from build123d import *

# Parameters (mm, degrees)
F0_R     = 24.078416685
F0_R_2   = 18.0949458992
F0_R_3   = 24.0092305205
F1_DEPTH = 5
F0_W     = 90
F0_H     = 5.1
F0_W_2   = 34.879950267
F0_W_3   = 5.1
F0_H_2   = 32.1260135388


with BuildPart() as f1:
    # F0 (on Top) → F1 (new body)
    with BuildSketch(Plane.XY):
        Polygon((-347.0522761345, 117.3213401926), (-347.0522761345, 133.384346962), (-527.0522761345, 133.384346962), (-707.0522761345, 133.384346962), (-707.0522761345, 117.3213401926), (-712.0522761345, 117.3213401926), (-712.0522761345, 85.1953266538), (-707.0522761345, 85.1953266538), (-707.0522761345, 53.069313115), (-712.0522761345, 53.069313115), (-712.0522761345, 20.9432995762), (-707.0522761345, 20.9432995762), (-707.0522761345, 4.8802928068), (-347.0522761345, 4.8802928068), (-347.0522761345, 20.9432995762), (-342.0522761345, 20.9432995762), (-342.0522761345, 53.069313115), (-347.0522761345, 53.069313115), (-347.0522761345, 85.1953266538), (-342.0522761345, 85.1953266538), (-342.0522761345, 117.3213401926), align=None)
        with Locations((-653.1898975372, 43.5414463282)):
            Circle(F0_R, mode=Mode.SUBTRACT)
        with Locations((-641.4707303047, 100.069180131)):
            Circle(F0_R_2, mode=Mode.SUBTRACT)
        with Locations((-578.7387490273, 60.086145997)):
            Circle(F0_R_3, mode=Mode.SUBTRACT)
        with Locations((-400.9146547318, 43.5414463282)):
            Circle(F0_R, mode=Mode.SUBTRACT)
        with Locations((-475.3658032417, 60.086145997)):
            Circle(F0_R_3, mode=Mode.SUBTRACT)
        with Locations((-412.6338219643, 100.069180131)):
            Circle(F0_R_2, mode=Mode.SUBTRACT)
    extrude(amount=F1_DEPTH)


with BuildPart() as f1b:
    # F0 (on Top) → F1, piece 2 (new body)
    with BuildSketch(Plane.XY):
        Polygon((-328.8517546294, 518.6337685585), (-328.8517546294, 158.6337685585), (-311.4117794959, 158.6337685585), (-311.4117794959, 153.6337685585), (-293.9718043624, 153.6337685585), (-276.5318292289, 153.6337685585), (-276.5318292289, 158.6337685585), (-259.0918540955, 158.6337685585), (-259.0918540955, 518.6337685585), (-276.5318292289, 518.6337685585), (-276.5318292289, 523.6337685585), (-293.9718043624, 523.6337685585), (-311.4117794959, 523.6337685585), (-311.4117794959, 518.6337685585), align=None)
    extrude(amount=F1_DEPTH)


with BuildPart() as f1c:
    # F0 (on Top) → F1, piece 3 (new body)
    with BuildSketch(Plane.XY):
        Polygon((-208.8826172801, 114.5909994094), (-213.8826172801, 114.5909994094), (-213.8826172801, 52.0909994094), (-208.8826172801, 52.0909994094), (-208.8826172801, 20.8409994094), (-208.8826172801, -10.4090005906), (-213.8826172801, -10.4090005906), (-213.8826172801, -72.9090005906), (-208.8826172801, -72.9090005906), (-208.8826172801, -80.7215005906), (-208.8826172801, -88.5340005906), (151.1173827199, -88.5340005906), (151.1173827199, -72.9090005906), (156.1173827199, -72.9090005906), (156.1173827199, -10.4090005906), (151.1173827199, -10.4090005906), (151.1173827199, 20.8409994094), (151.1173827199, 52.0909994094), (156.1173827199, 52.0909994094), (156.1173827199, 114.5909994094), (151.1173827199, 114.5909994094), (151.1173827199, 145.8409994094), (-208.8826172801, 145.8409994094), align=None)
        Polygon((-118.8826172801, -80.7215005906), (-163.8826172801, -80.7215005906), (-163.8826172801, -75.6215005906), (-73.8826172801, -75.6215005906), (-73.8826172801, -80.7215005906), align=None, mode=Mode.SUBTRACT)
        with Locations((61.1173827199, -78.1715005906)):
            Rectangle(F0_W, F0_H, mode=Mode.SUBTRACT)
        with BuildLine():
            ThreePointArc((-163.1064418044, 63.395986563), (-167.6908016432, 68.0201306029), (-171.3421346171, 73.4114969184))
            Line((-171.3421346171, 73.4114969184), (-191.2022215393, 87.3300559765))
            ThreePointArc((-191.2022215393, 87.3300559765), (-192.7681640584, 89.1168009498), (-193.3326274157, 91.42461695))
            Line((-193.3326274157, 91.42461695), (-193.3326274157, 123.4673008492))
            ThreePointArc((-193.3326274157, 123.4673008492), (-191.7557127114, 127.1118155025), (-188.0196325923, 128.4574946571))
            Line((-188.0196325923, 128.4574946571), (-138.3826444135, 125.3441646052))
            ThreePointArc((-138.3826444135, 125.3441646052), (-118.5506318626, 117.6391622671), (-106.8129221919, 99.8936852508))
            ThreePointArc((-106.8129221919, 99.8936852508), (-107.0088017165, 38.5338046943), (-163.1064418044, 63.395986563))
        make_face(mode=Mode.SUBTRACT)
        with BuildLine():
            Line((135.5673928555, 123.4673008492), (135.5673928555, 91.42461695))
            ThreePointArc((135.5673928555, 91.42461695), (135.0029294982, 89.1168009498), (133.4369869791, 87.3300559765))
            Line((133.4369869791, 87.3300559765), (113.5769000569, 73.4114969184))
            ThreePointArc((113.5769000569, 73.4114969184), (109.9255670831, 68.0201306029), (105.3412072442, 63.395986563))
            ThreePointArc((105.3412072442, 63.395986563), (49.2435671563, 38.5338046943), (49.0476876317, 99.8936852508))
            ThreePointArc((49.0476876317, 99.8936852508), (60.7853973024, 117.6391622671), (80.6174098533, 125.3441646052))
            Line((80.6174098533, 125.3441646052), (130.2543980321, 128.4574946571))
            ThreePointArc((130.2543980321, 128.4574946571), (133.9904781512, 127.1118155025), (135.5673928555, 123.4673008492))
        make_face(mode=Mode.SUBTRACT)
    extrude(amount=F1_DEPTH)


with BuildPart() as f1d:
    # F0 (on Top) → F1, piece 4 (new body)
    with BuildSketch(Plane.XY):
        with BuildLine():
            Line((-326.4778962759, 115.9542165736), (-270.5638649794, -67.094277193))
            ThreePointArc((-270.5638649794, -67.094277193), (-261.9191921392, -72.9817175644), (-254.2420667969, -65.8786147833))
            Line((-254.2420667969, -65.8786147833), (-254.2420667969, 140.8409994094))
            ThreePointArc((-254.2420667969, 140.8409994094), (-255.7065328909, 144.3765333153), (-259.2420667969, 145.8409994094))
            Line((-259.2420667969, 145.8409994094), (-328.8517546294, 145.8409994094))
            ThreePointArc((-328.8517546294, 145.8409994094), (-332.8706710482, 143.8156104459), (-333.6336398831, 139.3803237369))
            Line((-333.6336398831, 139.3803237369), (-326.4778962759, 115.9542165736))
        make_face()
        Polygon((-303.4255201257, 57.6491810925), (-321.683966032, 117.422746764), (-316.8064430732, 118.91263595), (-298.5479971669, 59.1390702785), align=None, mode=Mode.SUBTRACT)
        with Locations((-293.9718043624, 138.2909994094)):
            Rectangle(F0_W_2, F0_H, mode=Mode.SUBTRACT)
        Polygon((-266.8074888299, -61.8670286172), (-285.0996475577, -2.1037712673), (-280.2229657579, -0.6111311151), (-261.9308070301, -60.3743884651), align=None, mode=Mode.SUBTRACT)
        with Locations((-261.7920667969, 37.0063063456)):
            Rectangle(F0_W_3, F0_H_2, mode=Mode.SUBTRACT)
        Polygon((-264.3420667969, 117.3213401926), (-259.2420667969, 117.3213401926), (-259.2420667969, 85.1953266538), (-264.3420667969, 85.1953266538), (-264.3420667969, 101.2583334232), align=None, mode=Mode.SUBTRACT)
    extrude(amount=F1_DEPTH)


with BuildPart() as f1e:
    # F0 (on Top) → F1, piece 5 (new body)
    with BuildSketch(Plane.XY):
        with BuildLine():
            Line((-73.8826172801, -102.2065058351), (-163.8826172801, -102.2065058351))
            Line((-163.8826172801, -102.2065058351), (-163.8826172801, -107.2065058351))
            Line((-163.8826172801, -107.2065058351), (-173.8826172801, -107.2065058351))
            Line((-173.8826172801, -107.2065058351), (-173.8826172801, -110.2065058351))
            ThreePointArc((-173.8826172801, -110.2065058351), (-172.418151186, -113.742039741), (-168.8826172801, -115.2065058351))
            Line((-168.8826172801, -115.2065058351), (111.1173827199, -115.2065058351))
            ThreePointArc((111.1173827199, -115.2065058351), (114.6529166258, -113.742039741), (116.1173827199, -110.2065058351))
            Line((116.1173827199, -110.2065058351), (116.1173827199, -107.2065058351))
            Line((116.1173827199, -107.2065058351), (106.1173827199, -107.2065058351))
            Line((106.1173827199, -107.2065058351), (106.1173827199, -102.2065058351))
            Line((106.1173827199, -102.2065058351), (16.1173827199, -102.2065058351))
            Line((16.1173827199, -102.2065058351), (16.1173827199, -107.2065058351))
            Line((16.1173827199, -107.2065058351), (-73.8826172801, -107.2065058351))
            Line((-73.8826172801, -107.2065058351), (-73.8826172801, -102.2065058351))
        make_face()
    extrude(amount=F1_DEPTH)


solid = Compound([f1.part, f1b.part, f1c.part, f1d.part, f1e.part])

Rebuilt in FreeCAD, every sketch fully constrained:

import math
import FreeCAD as App
import Part
import Sketcher

V = App.Vector
Q = App.Units.Quantity


def add_polygon(sketch, points):
    """Adds a closed chain of lines whose ends are joined by coincident constraints."""
    first, n = sketch.GeometryCount, len(points)
    for a, b in zip(points, points[1:] + points[:1]):
        sketch.addGeometry(Part.LineSegment(App.Vector(*a, 0), App.Vector(*b, 0)), False)
    for i in range(n):
        sketch.addConstraint(Sketcher.Constraint("Coincident", first + i, 2, first + (i + 1) % n, 1))

doc = App.newDocument("Part")
body = doc.addObject("PartDesign::Body", "Body")

# Sketch on XY plane
sketch1 = body.newObject("Sketcher::SketchObject", "Sketch")
sketch1.AttachmentSupport = (doc.getObject("XY_Plane"), [""])
sketch1.MapMode = "FlatFace"
add_polygon(sketch1, [(-347, 117), (-347, 133), (-707, 133), (-707, 117), (-712, 117), (-712, 85), (-707, 85), (-707, 53), (-712, 53), (-712, 21), (-707, 21), (-707, 5), (-347, 5), (-347, 21), (-342, 21), (-342, 53), (-347, 53), (-347, 85), (-342, 85), (-342, 117)])  # lines 0-19
sketch1.addGeometry(Part.Circle(V(-653, 44, 0), V(0, 0, 1), 24), False)  # 20
sketch1.addGeometry(Part.Circle(V(-579, 60, 0), V(0, 0, 1), 24), False)  # 21
sketch1.addGeometry(Part.Circle(V(-401, 44, 0), V(0, 0, 1), 24), False)  # 22
sketch1.addGeometry(Part.Circle(V(-475, 60, 0), V(0, 0, 1), 24), False)  # 23
sketch1.addGeometry(Part.Circle(V(-641, 100, 0), V(0, 0, 1), 18), False)  # 24
sketch1.addGeometry(Part.Circle(V(-413, 100, 0), V(0, 0, 1), 18), False)  # 25
sketch1.addConstraint(Sketcher.Constraint("Vertical", 0))
sketch1.addConstraint(Sketcher.Constraint("Horizontal", 1))
sketch1.addConstraint(Sketcher.Constraint("Vertical", 2))
sketch1.addConstraint(Sketcher.Constraint("Horizontal", 3))
sketch1.addConstraint(Sketcher.Constraint("Vertical", 4))
sketch1.addConstraint(Sketcher.Constraint("Horizontal", 5))
sketch1.addConstraint(Sketcher.Constraint("Vertical", 6))
sketch1.addConstraint(Sketcher.Constraint("Horizontal", 7))
sketch1.addConstraint(Sketcher.Constraint("Vertical", 8))
sketch1.addConstraint(Sketcher.Constraint("Horizontal", 9))
sketch1.addConstraint(Sketcher.Constraint("Vertical", 10))
sketch1.addConstraint(Sketcher.Constraint("Horizontal", 11))
sketch1.addConstraint(Sketcher.Constraint("Vertical", 12))
sketch1.addConstraint(Sketcher.Constraint("Horizontal", 13))
sketch1.addConstraint(Sketcher.Constraint("Vertical", 14))
sketch1.addConstraint(Sketcher.Constraint("Horizontal", 15))
sketch1.addConstraint(Sketcher.Constraint("Vertical", 16))
sketch1.addConstraint(Sketcher.Constraint("Horizontal", 17))
sketch1.addConstraint(Sketcher.Constraint("Vertical", 18))
sketch1.addConstraint(Sketcher.Constraint("Horizontal", 19))
sketch1.addConstraint(Sketcher.Constraint("Equal", 20, 22))
sketch1.addConstraint(Sketcher.Constraint("Equal", 21, 23))
sketch1.addConstraint(Sketcher.Constraint("Equal", 24, 25))
sketch1.addConstraint(Sketcher.Constraint("Horizontal", 20, 3, 22, 3))
sketch1.addConstraint(Sketcher.Constraint("Horizontal", 21, 3, 23, 3))
sketch1.addConstraint(Sketcher.Constraint("Horizontal", 24, 3, 25, 3))
sketch1.addConstraint(Sketcher.Constraint("Horizontal", 9, 2, 12, 2))
sketch1.addConstraint(Sketcher.Constraint("Horizontal", 7, 2, 14, 2))
sketch1.addConstraint(Sketcher.Constraint("Horizontal", 5, 2, 16, 2))
sketch1.addConstraint(Sketcher.Constraint("Horizontal", 3, 2, 18, 2))
sketch1.addConstraint(Sketcher.Constraint("Vertical", 2, 2, 5, 2))
sketch1.addConstraint(Sketcher.Constraint("Vertical", 4, 2, 7, 2))
sketch1.addConstraint(Sketcher.Constraint("Vertical", 6, 2, 9, 2))
sketch1.addConstraint(Sketcher.Constraint("Vertical", 0, 2, 11, 2))
sketch1.addConstraint(Sketcher.Constraint("Vertical", 12, 2, 15, 2))
sketch1.addConstraint(Sketcher.Constraint("Vertical", 14, 2, 17, 2))
sketch1.addConstraint(Sketcher.Constraint("Equal", 9, 13))
sketch1.addConstraint(Sketcher.Constraint("Equal", 4, 6))
sketch1.addConstraint(Sketcher.Constraint("Equal", 6, 8))
sketch1.addConstraint(Sketcher.Constraint("Equal", 2, 10))
sketch1.addConstraint(Sketcher.Constraint("DistanceX", 1, 2, 1, 1, Q("360 mm")))
sketch1.addConstraint(Sketcher.Constraint("DistanceX", 3, 2, 3, 1, Q("5 mm")))
sketch1.addConstraint(Sketcher.Constraint("Diameter", 21, Q("48.018461 mm")))
sketch1.addConstraint(Sketcher.Constraint("Diameter", 24, Q("36.189892 mm")))
sketch1.addConstraint(Sketcher.Constraint("Diameter", 20, Q("48.156833 mm")))
sketch1.addConstraint(Sketcher.Constraint("DistanceY", -1, 1, 8, 2, Q("20.9433 mm")))
sketch1.addConstraint(Sketcher.Constraint("DistanceY", 20, 3, 21, 3, Q("16.5447 mm")))
sketch1.addConstraint(Sketcher.Constraint("DistanceY", 22, 3, 0, 2, Q("89.842901 mm")))
sketch1.addConstraint(Sketcher.Constraint("DistanceY", 0, 1, 0, 2, Q("16.063007 mm")))
sketch1.addConstraint(Sketcher.Constraint("DistanceY", 4, 2, 4, 1, Q("32.126014 mm")))
sketch1.addConstraint(Sketcher.Constraint("DistanceX", 21, 3, -1, 1, Q("578.738749 mm")))
sketch1.addConstraint(Sketcher.Constraint("DistanceX", 24, 3, -1, 1, Q("641.47073 mm")))
sketch1.addConstraint(Sketcher.Constraint("DistanceY", -1, 1, 24, 3, Q("100.06918 mm")))
sketch1.addConstraint(Sketcher.Constraint("DistanceX", 25, 3, -1, 1, Q("412.633822 mm")))
sketch1.addConstraint(Sketcher.Constraint("DistanceX", 20, 3, 21, 3, Q("74.451149 mm")))
sketch1.addConstraint(Sketcher.Constraint("DistanceX", 23, 3, 22, 3, Q("74.451149 mm")))
sketch1.addConstraint(Sketcher.Constraint("DistanceX", 23, 3, 25, 3, Q("62.731981 mm")))
sketch1.addConstraint(Sketcher.Constraint("DistanceX", 22, 3, 0, 2, Q("53.862379 mm")))
pad1 = body.newObject("PartDesign::Pad", "Pad")
pad1.Profile = sketch1
pad1.Length = 5
body2 = doc.addObject("PartDesign::Body", "Body001")

# Sketch on XY plane
sketch2 = body2.newObject("Sketcher::SketchObject", "Sketch001")
sketch2.AttachmentSupport = (doc.getObject("XY_Plane001"), [""])
sketch2.MapMode = "FlatFace"
add_polygon(sketch2, [(-329, 519), (-329, 159), (-311, 159), (-311, 154), (-277, 154), (-277, 159), (-259, 159), (-259, 519), (-277, 519), (-277, 524), (-311, 524), (-311, 519)])  # lines 0-11
sketch2.addConstraint(Sketcher.Constraint("Vertical", 0))
sketch2.addConstraint(Sketcher.Constraint("Horizontal", 1))
sketch2.addConstraint(Sketcher.Constraint("Vertical", 2))
sketch2.addConstraint(Sketcher.Constraint("Horizontal", 3))
sketch2.addConstraint(Sketcher.Constraint("Vertical", 4))
sketch2.addConstraint(Sketcher.Constraint("Horizontal", 5))
sketch2.addConstraint(Sketcher.Constraint("Vertical", 6))
sketch2.addConstraint(Sketcher.Constraint("Horizontal", 7))
sketch2.addConstraint(Sketcher.Constraint("Vertical", 8))
sketch2.addConstraint(Sketcher.Constraint("Horizontal", 9))
sketch2.addConstraint(Sketcher.Constraint("Vertical", 10))
sketch2.addConstraint(Sketcher.Constraint("Horizontal", 11))
sketch2.addConstraint(Sketcher.Constraint("Horizontal", 1, 2, 4, 2))
sketch2.addConstraint(Sketcher.Constraint("Horizontal", 7, 2, 10, 2))
sketch2.addConstraint(Sketcher.Constraint("Vertical", 4, 2, 7, 2))
sketch2.addConstraint(Sketcher.Constraint("Vertical", 2, 2, 9, 2))
sketch2.addConstraint(Sketcher.Constraint("Equal", 1, 5))
sketch2.addConstraint(Sketcher.Constraint("Equal", 4, 8))
sketch2.addConstraint(Sketcher.Constraint("DistanceY", 0, 2, 0, 1, Q("360 mm")))
sketch2.addConstraint(Sketcher.Constraint("DistanceY", 2, 2, 2, 1, Q("5 mm")))
sketch2.addConstraint(Sketcher.Constraint("DistanceX", 3, 1, 3, 2, Q("34.87995 mm")))
sketch2.addConstraint(Sketcher.Constraint("DistanceX", 0, 2, 5, 2, Q("69.759901 mm")))
sketch2.addConstraint(Sketcher.Constraint("DistanceY", -1, 1, 0, 2, Q("158.633769 mm")))
sketch2.addConstraint(Sketcher.Constraint("DistanceX", 1, 2, -1, 1, Q("311.411779 mm")))
pad2 = body2.newObject("PartDesign::Pad", "Pad001")
pad2.Profile = sketch2
pad2.Length = 5
body3 = doc.addObject("PartDesign::Body", "Body002")

# Sketch on XY plane
sketch3 = body3.newObject("Sketcher::SketchObject", "Sketch002")
sketch3.AttachmentSupport = (doc.getObject("XY_Plane002"), [""])
sketch3.MapMode = "FlatFace"
add_polygon(sketch3, [(-208.9, 114.6), (-213.9, 114.6), (-213.9, 52.1), (-208.9, 52.1), (-208.9, -10.4), (-213.9, -10.4), (-213.9, -72.9), (-208.9, -72.9), (-208.9, -88.5), (151.1, -88.5), (151.1, -72.9), (156.1, -72.9), (156.1, -10.4), (151.1, -10.4), (151.1, 52.1), (156.1, 52.1), (156.1, 114.6), (151.1, 114.6), (151.1, 145.8), (-208.9, 145.8)])  # lines 0-19
add_polygon(sketch3, [(-73.9, -80.7), (-163.9, -80.7), (-163.9, -75.6), (-73.9, -75.6)])  # lines 20-23
add_polygon(sketch3, [(106.1, -80.7), (16.1, -80.7), (16.1, -75.6), (106.1, -75.6)])  # lines 24-27
sketch3.addGeometry(Part.ArcOfCircle(Part.Circle(V(-126.9, 69.3, 0), V(0, 0, 1), 36.6), math.radians(-171), math.radians(57)), False)  # 28
sketch3.addGeometry(Part.ArcOfCircle(Part.Circle(V(-140.6, 90.3, 0), V(0, 0, 1), 35.1), math.radians(-151), math.radians(-130)), False)  # 29
sketch3.addGeometry(Part.LineSegment(V(-171.3, 73.4, 0), V(-191.2, 87.3, 0)), False)  # 30
sketch3.addGeometry(Part.ArcOfCircle(Part.Circle(V(-188.3, 91.4, 0), V(0, 0, 1), 5), math.radians(180), math.radians(235)), False)  # 31
sketch3.addGeometry(Part.LineSegment(V(-193.3, 91.4, 0), V(-193.3, 123.5, 0)), False)  # 32
sketch3.addGeometry(Part.ArcOfCircle(Part.Circle(V(-188.3, 123.5, 0), V(0, 0, 1), 5), math.radians(86), math.radians(180)), False)  # 33
sketch3.addGeometry(Part.LineSegment(V(-188, 128.5, 0), V(-138.4, 125.3, 0)), False)  # 34
sketch3.addGeometry(Part.ArcOfCircle(Part.Circle(V(-140.6, 90.3, 0), V(0, 0, 1), 35.1), math.radians(16), math.radians(86)), False)  # 35
sketch3.addGeometry(Part.ArcOfCircle(Part.Circle(V(130.6, 123.5, 0), V(0, 0, 1), 5), math.radians(0), math.radians(94)), False)  # 36
sketch3.addGeometry(Part.LineSegment(V(135.6, 123.5, 0), V(135.6, 91.4, 0)), False)  # 37
sketch3.addGeometry(Part.ArcOfCircle(Part.Circle(V(130.6, 91.4, 0), V(0, 0, 1), 5), math.radians(-55), math.radians(0)), False)  # 38
sketch3.addGeometry(Part.LineSegment(V(133.4, 87.3, 0), V(113.6, 73.4, 0)), False)  # 39
sketch3.addGeometry(Part.ArcOfCircle(Part.Circle(V(82.8, 90.3, 0), V(0, 0, 1), 35.1), math.radians(-50), math.radians(-29)), False)  # 40
sketch3.addGeometry(Part.ArcOfCircle(Part.Circle(V(69.2, 69.3, 0), V(0, 0, 1), 36.6), math.radians(123), math.radians(351)), False)  # 41
sketch3.addGeometry(Part.ArcOfCircle(Part.Circle(V(82.8, 90.3, 0), V(0, 0, 1), 35.1), math.radians(94), math.radians(164)), False)  # 42
sketch3.addGeometry(Part.LineSegment(V(80.6, 125.3, 0), V(130.3, 128.5, 0)), False)  # 43
sketch3.addConstraint(Sketcher.Constraint("Coincident", 28, 1, 29, 2))
sketch3.addConstraint(Sketcher.Constraint("Coincident", 29, 1, 30, 1))
sketch3.addConstraint(Sketcher.Constraint("Tangent", 30, 2, 31, 2))
sketch3.addConstraint(Sketcher.Constraint("Tangent", 31, 1, 32, 1))
sketch3.addConstraint(Sketcher.Constraint("Tangent", 32, 2, 33, 2))
sketch3.addConstraint(Sketcher.Constraint("Tangent", 33, 1, 34, 1))
sketch3.addConstraint(Sketcher.Constraint("Tangent", 34, 2, 35, 2))
sketch3.addConstraint(Sketcher.Constraint("Coincident", 35, 1, 28, 2))
sketch3.addConstraint(Sketcher.Constraint("Tangent", 36, 1, 37, 1))
sketch3.addConstraint(Sketcher.Constraint("Tangent", 37, 2, 38, 2))
sketch3.addConstraint(Sketcher.Constraint("Tangent", 38, 1, 39, 1))
sketch3.addConstraint(Sketcher.Constraint("Coincident", 39, 2, 40, 2))
sketch3.addConstraint(Sketcher.Constraint("Coincident", 40, 1, 41, 2))
sketch3.addConstraint(Sketcher.Constraint("Coincident", 41, 1, 42, 2))
sketch3.addConstraint(Sketcher.Constraint("Tangent", 42, 1, 43, 1))
sketch3.addConstraint(Sketcher.Constraint("Tangent", 43, 2, 36, 2))
sketch3.addConstraint(Sketcher.Constraint("Horizontal", 0))
sketch3.addConstraint(Sketcher.Constraint("Vertical", 1))
sketch3.addConstraint(Sketcher.Constraint("Horizontal", 2))
sketch3.addConstraint(Sketcher.Constraint("Vertical", 3))
sketch3.addConstraint(Sketcher.Constraint("Horizontal", 4))
sketch3.addConstraint(Sketcher.Constraint("Vertical", 5))
sketch3.addConstraint(Sketcher.Constraint("Horizontal", 6))
sketch3.addConstraint(Sketcher.Constraint("Vertical", 7))
sketch3.addConstraint(Sketcher.Constraint("Horizontal", 8))
sketch3.addConstraint(Sketcher.Constraint("Vertical", 9))
sketch3.addConstraint(Sketcher.Constraint("Horizontal", 10))
sketch3.addConstraint(Sketcher.Constraint("Vertical", 11))
sketch3.addConstraint(Sketcher.Constraint("Horizontal", 12))
sketch3.addConstraint(Sketcher.Constraint("Vertical", 13))
sketch3.addConstraint(Sketcher.Constraint("Horizontal", 14))
sketch3.addConstraint(Sketcher.Constraint("Vertical", 15))
sketch3.addConstraint(Sketcher.Constraint("Horizontal", 16))
sketch3.addConstraint(Sketcher.Constraint("Vertical", 17))
sketch3.addConstraint(Sketcher.Constraint("Horizontal", 18))
sketch3.addConstraint(Sketcher.Constraint("Vertical", 19))
sketch3.addConstraint(Sketcher.Constraint("Horizontal", 20))
sketch3.addConstraint(Sketcher.Constraint("Vertical", 21))
sketch3.addConstraint(Sketcher.Constraint("Horizontal", 22))
sketch3.addConstraint(Sketcher.Constraint("Vertical", 23))
sketch3.addConstraint(Sketcher.Constraint("Horizontal", 24))
sketch3.addConstraint(Sketcher.Constraint("Vertical", 25))
sketch3.addConstraint(Sketcher.Constraint("Horizontal", 26))
sketch3.addConstraint(Sketcher.Constraint("Vertical", 27))
sketch3.addConstraint(Sketcher.Constraint("Vertical", 32))
sketch3.addConstraint(Sketcher.Constraint("Vertical", 37))
sketch3.addConstraint(Sketcher.Constraint("Coincident", 35, 3, 29, 3))
sketch3.addConstraint(Sketcher.Constraint("Coincident", 42, 3, 40, 3))
sketch3.addConstraint(Sketcher.Constraint("Equal", 31, 33))
sketch3.addConstraint(Sketcher.Constraint("Equal", 29, 35))
sketch3.addConstraint(Sketcher.Constraint("Equal", 33, 36))
sketch3.addConstraint(Sketcher.Constraint("Equal", 36, 38))
sketch3.addConstraint(Sketcher.Constraint("Equal", 35, 40))
sketch3.addConstraint(Sketcher.Constraint("Equal", 28, 41))
sketch3.addConstraint(Sketcher.Constraint("Equal", 40, 42))
sketch3.addConstraint(Sketcher.Constraint("Horizontal", 33, 3, 36, 3))
sketch3.addConstraint(Sketcher.Constraint("Horizontal", 31, 3, 38, 3))
sketch3.addConstraint(Sketcher.Constraint("Horizontal", 35, 3, 40, 3))
sketch3.addConstraint(Sketcher.Constraint("Horizontal", 28, 3, 41, 3))
sketch3.addConstraint(Sketcher.Constraint("Horizontal", 6, 2, 9, 2))
sketch3.addConstraint(Sketcher.Constraint("Horizontal", 4, 2, 11, 2))
sketch3.addConstraint(Sketcher.Constraint("Horizontal", 2, 2, 13, 2))
sketch3.addConstraint(Sketcher.Constraint("Horizontal", 0, 2, 15, 2))
sketch3.addConstraint(Sketcher.Constraint("Horizontal", 23, 2, 24, 2))
sketch3.addConstraint(Sketcher.Constraint("Horizontal", 22, 2, 25, 2))
sketch3.addConstraint(Sketcher.Constraint("Horizontal", 30, 2, 38, 1))
sketch3.addConstraint(Sketcher.Constraint("Horizontal", 29, 1, 39, 2))
sketch3.addConstraint(Sketcher.Constraint("Horizontal", 28, 1, 40, 1))
sketch3.addConstraint(Sketcher.Constraint("Vertical", 1, 2, 4, 2))
sketch3.addConstraint(Sketcher.Constraint("Vertical", 3, 2, 6, 2))
sketch3.addConstraint(Sketcher.Constraint("Vertical", 9, 2, 12, 2))
sketch3.addConstraint(Sketcher.Constraint("Vertical", 11, 2, 14, 2))
sketch3.addConstraint(Sketcher.Constraint("Vertical", 13, 2, 16, 2))
sketch3.addConstraint(Sketcher.Constraint("Vertical", 7, 2, 18, 2))
sketch3.addConstraint(Sketcher.Constraint("Equal", 6, 10))
sketch3.addConstraint(Sketcher.Constraint("Equal", 22, 24))
sketch3.addConstraint(Sketcher.Constraint("Equal", 1, 3))
sketch3.addConstraint(Sketcher.Constraint("Equal", 3, 5))
sketch3.addConstraint(Sketcher.Constraint("Radius", 31, Q("5 mm")))
sketch3.addConstraint(Sketcher.Constraint("DistanceX", 0, 2, 0, 1, Q("5 mm")))
sketch3.addConstraint(Sketcher.Constraint("DistanceX", 8, 1, 8, 2, Q("360 mm")))
sketch3.addConstraint(Sketcher.Constraint("DistanceX", 20, 2, 20, 1, Q("90 mm")))
sketch3.addConstraint(Sketcher.Constraint("DistanceY", 1, 2, 1, 1, Q("62.5 mm")))
sketch3.addConstraint(Sketcher.Constraint("DistanceY", 21, 1, 21, 2, Q("5.1 mm")))
sketch3.addConstraint(Sketcher.Constraint("DistanceX", 6, 2, 20, 2, Q("45 mm")))
sketch3.addConstraint(Sketcher.Constraint("DistanceX", 23, 2, 24, 2, Q("90 mm")))
sketch3.addConstraint(Sketcher.Constraint("DistanceY", 17, 1, 17, 2, Q("31.25 mm")))
sketch3.addConstraint(Sketcher.Constraint("DistanceY", 7, 2, 7, 1, Q("15.625 mm")))
sketch3.addConstraint(Sketcher.Constraint("Radius", 28, Q("36.64012 mm")))
sketch3.addConstraint(Sketcher.Constraint("DistanceY", -1, 1, 0, 2, Q("114.590999 mm")))
sketch3.addConstraint(Sketcher.Constraint("Radius", 29, Q("35.099703 mm")))
sketch3.addConstraint(Sketcher.Constraint("DistanceY", 29, 3, 33, 3, Q("33.154 mm")))
sketch3.addConstraint(Sketcher.Constraint("DistanceY", -1, 1, 29, 3, Q("90.3133 mm")))
sketch3.addConstraint(Sketcher.Constraint("DistanceY", 20, 2, -1, 1, Q("80.721501 mm")))
sketch3.addConstraint(Sketcher.Constraint("DistanceX", -1, 1, 39, 2, Q("113.5769 mm")))
sketch3.addConstraint(Sketcher.Constraint("DistanceX", -1, 1, 43, 2, Q("130.254398 mm")))
sketch3.addConstraint(Sketcher.Constraint("DistanceY", 28, 1, 35, 1, Q("36.497699 mm")))
sketch3.addConstraint(Sketcher.Constraint("Distance", 30, Q("24.25179 mm")))
sketch3.addConstraint(Sketcher.Constraint("Distance", 34, Q("49.734529 mm")))
sketch3.addConstraint(Sketcher.Constraint("DistanceY", -1, 1, 28, 3, Q("69.277689 mm")))
sketch3.addConstraint(Sketcher.Constraint("DistanceX", 29, 3, -1, 1, Q("140.579849 mm")))
sketch3.addConstraint(Sketcher.Constraint("DistanceX", 0, 2, 33, 3, Q("25.54999 mm")))
pad3 = body3.newObject("PartDesign::Pad", "Pad002")
pad3.Profile = sketch3
pad3.Length = 5
body4 = doc.addObject("PartDesign::Body", "Body003")

# Sketch on XY plane
sketch4 = body4.newObject("Sketcher::SketchObject", "Sketch003")
sketch4.AttachmentSupport = (doc.getObject("XY_Plane003"), [""])
sketch4.MapMode = "FlatFace"
sketch4.addGeometry(Part.LineSegment(V(-326, 116, 0), V(-271, -67, 0)), False)  # 0
sketch4.addGeometry(Part.ArcOfCircle(Part.Circle(V(-263, -65, 0), V(0, 0, 1), 8), math.radians(-163), math.radians(-9)), False)  # 1
sketch4.addGeometry(Part.LineSegment(V(-254, -66, 0), V(-254, 141, 0)), False)  # 2
sketch4.addGeometry(Part.ArcOfCircle(Part.Circle(V(-259, 141, 0), V(0, 0, 1), 5), math.radians(0), math.radians(90)), False)  # 3
sketch4.addGeometry(Part.LineSegment(V(-259, 146, 0), V(-329, 146, 0)), False)  # 4
sketch4.addGeometry(Part.ArcOfCircle(Part.Circle(V(-329, 141, 0), V(0, 0, 1), 5), math.radians(90), math.radians(197)), False)  # 5
sketch4.addGeometry(Part.LineSegment(V(-334, 139, 0), V(-326, 116, 0)), False)  # 6
add_polygon(sketch4, [(-262, -60), (-267, -62), (-285, -2), (-280, -1)])  # lines 7-10
add_polygon(sketch4, [(-259, 21), (-264, 21), (-264, 53), (-259, 53)])  # lines 11-14
add_polygon(sketch4, [(-299, 59), (-303, 58), (-322, 117), (-317, 119)])  # lines 15-18
add_polygon(sketch4, [(-277, 136), (-311, 136), (-311, 141), (-277, 141)])  # lines 19-22
add_polygon(sketch4, [(-264, 85), (-264, 117), (-259, 117), (-259, 85)])  # lines 23-26
sketch4.addConstraint(Sketcher.Constraint("Coincident", 0, 2, 1, 1))
sketch4.addConstraint(Sketcher.Constraint("Coincident", 1, 2, 2, 1))
sketch4.addConstraint(Sketcher.Constraint("Tangent", 2, 2, 3, 1))
sketch4.addConstraint(Sketcher.Constraint("Tangent", 3, 2, 4, 1))
sketch4.addConstraint(Sketcher.Constraint("Tangent", 4, 2, 5, 1))
sketch4.addConstraint(Sketcher.Constraint("Tangent", 5, 2, 6, 1))
sketch4.addConstraint(Sketcher.Constraint("Coincident", 6, 2, 0, 1))
sketch4.addConstraint(Sketcher.Constraint("Vertical", 2))
sketch4.addConstraint(Sketcher.Constraint("Horizontal", 4))
sketch4.addConstraint(Sketcher.Constraint("Horizontal", 11))
sketch4.addConstraint(Sketcher.Constraint("Vertical", 12))
sketch4.addConstraint(Sketcher.Constraint("Horizontal", 13))
sketch4.addConstraint(Sketcher.Constraint("Vertical", 14))
sketch4.addConstraint(Sketcher.Constraint("Horizontal", 19))
sketch4.addConstraint(Sketcher.Constraint("Vertical", 20))
sketch4.addConstraint(Sketcher.Constraint("Horizontal", 21))
sketch4.addConstraint(Sketcher.Constraint("Vertical", 22))
sketch4.addConstraint(Sketcher.Constraint("Vertical", 23))
sketch4.addConstraint(Sketcher.Constraint("Horizontal", 24))
sketch4.addConstraint(Sketcher.Constraint("Vertical", 25))
sketch4.addConstraint(Sketcher.Constraint("Horizontal", 26))
sketch4.addConstraint(Sketcher.Constraint("Equal", 3, 5))
sketch4.addConstraint(Sketcher.Constraint("Parallel", 0, 6))
sketch4.addConstraint(Sketcher.Constraint("Perpendicular", 7, 8))
sketch4.addConstraint(Sketcher.Constraint("Perpendicular", 8, 9))
sketch4.addConstraint(Sketcher.Constraint("Perpendicular", 9, 10))
sketch4.addConstraint(Sketcher.Constraint("Perpendicular", 6, 15))
sketch4.addConstraint(Sketcher.Constraint("Perpendicular", 15, 16))
sketch4.addConstraint(Sketcher.Constraint("Perpendicular", 16, 17))
sketch4.addConstraint(Sketcher.Constraint("Perpendicular", 17, 18))
sketch4.addConstraint(Sketcher.Constraint("Horizontal", 2, 2, 20, 2))
sketch4.addConstraint(Sketcher.Constraint("Vertical", 3, 2, 13, 2))
sketch4.addConstraint(Sketcher.Constraint("Vertical", 12, 2, 23, 2))
sketch4.addConstraint(Sketcher.Constraint("Vertical", 14, 2, 24, 2))
sketch4.addConstraint(Sketcher.Constraint("Equal", 26, 20))
sketch4.addConstraint(Sketcher.Constraint("Equal", 14, 23))
sketch4.addConstraint(Sketcher.Constraint("Equal", 9, 15))
sketch4.addConstraint(Sketcher.Constraint("Equal", 10, 16))
sketch4.addConstraint(Sketcher.Constraint("Radius", 3, Q("5 mm")))
sketch4.addConstraint(Sketcher.Constraint("DistanceX", 11, 2, 11, 1, Q("5.1 mm")))
sketch4.addConstraint(Sketcher.Constraint("Distance", 7, Q("5.1 mm")))
sketch4.addConstraint(Sketcher.Constraint("Distance", 8, Q("62.5 mm")))
sketch4.addConstraint(Sketcher.Constraint("Radius", 1, Q("8.397659 mm")))
sketch4.addConstraint(Sketcher.Constraint("DistanceY", -1, 1, 3, 3, Q("140.840999 mm")))
sketch4.addConstraint(Sketcher.Constraint("DistanceX", 19, 2, 19, 1, Q("34.87995 mm")))
sketch4.addConstraint(Sketcher.Constraint("DistanceY", -1, 1, 11, 2, Q("20.9433 mm")))
sketch4.addConstraint(Sketcher.Constraint("DistanceX", 0, 2, 3, 3, Q("11.321798 mm")))
sketch4.addConstraint(Sketcher.Constraint("DistanceX", 9, 2, 0, 2, Q("9.659101 mm")))
sketch4.addConstraint(Sketcher.Constraint("Distance", 0, Q("191.397832 mm")))
sketch4.addConstraint(Sketcher.Constraint("DistanceX", 4, 2, 4, 1, Q("69.609688 mm")))
sketch4.addConstraint(Sketcher.Constraint("DistanceY", 2, 1, 2, 2, Q("206.719614 mm")))
sketch4.addConstraint(Sketcher.Constraint("DistanceY", 12, 1, 12, 2, Q("32.126014 mm")))
sketch4.addConstraint(Sketcher.Constraint("DistanceX", 1, 3, -1, 1, Q("262.54293 mm")))
sketch4.addConstraint(Sketcher.Constraint("DistanceX", 5, 2, -1, 1, Q("333.63364 mm")))
sketch4.addConstraint(Sketcher.Constraint("DistanceX", 7, 2, -1, 1, Q("266.807489 mm")))
sketch4.addConstraint(Sketcher.Constraint("DistanceY", 7, 2, -1, 1, Q("61.867029 mm")))
sketch4.addConstraint(Sketcher.Constraint("DistanceX", 15, 2, -1, 1, Q("303.42552 mm")))
sketch4.addConstraint(Sketcher.Constraint("DistanceY", -1, 1, 15, 2, Q("57.649181 mm")))
sketch4.addConstraint(Sketcher.Constraint("DistanceX", 19, 2, -1, 1, Q("311.411779 mm")))
sketch4.addConstraint(Sketcher.Constraint("DistanceY", -1, 1, 23, 2, Q("117.32134 mm")))
pad4 = body4.newObject("PartDesign::Pad", "Pad003")
pad4.Profile = sketch4
pad4.Length = 5
body5 = doc.addObject("PartDesign::Body", "Body004")

# Sketch on XY plane
sketch5 = body5.newObject("Sketcher::SketchObject", "Sketch004")
sketch5.AttachmentSupport = (doc.getObject("XY_Plane004"), [""])
sketch5.MapMode = "FlatFace"
sketch5.addGeometry(Part.LineSegment(V(-73.9, -102.2, 0), V(-163.9, -102.2, 0)), False)
sketch5.addGeometry(Part.LineSegment(V(-163.9, -102.2, 0), V(-163.9, -107.2, 0)), False)
sketch5.addGeometry(Part.LineSegment(V(-163.9, -107.2, 0), V(-173.9, -107.2, 0)), False)
sketch5.addGeometry(Part.LineSegment(V(-173.9, -107.2, 0), V(-173.9, -110.2, 0)), False)
sketch5.addGeometry(Part.ArcOfCircle(Part.Circle(V(-168.9, -110.2, 0), V(0, 0, 1), 5), math.radians(180), math.radians(270)), False)
sketch5.addGeometry(Part.LineSegment(V(-168.9, -115.2, 0), V(111.1, -115.2, 0)), False)
sketch5.addGeometry(Part.ArcOfCircle(Part.Circle(V(111.1, -110.2, 0), V(0, 0, 1), 5), math.radians(-90), math.radians(0)), False)
sketch5.addGeometry(Part.LineSegment(V(116.1, -110.2, 0), V(116.1, -107.2, 0)), False)
sketch5.addGeometry(Part.LineSegment(V(116.1, -107.2, 0), V(106.1, -107.2, 0)), False)
sketch5.addGeometry(Part.LineSegment(V(106.1, -107.2, 0), V(106.1, -102.2, 0)), False)
sketch5.addGeometry(Part.LineSegment(V(106.1, -102.2, 0), V(16.1, -102.2, 0)), False)
sketch5.addGeometry(Part.LineSegment(V(16.1, -102.2, 0), V(16.1, -107.2, 0)), False)
sketch5.addGeometry(Part.LineSegment(V(16.1, -107.2, 0), V(-73.9, -107.2, 0)), False)
sketch5.addGeometry(Part.LineSegment(V(-73.9, -107.2, 0), V(-73.9, -102.2, 0)), False)
sketch5.addConstraint(Sketcher.Constraint("Coincident", 0, 2, 1, 1))
sketch5.addConstraint(Sketcher.Constraint("Coincident", 1, 2, 2, 1))
sketch5.addConstraint(Sketcher.Constraint("Coincident", 2, 2, 3, 1))
sketch5.addConstraint(Sketcher.Constraint("Tangent", 3, 2, 4, 1))
sketch5.addConstraint(Sketcher.Constraint("Tangent", 4, 2, 5, 1))
sketch5.addConstraint(Sketcher.Constraint("Tangent", 5, 2, 6, 1))
sketch5.addConstraint(Sketcher.Constraint("Tangent", 6, 2, 7, 1))
sketch5.addConstraint(Sketcher.Constraint("Coincident", 7, 2, 8, 1))
sketch5.addConstraint(Sketcher.Constraint("Coincident", 8, 2, 9, 1))
sketch5.addConstraint(Sketcher.Constraint("Coincident", 9, 2, 10, 1))
sketch5.addConstraint(Sketcher.Constraint("Coincident", 10, 2, 11, 1))
sketch5.addConstraint(Sketcher.Constraint("Coincident", 11, 2, 12, 1))
sketch5.addConstraint(Sketcher.Constraint("Coincident", 12, 2, 13, 1))
sketch5.addConstraint(Sketcher.Constraint("Coincident", 13, 2, 0, 1))
sketch5.addConstraint(Sketcher.Constraint("Horizontal", 0))
sketch5.addConstraint(Sketcher.Constraint("Vertical", 1))
sketch5.addConstraint(Sketcher.Constraint("Horizontal", 2))
sketch5.addConstraint(Sketcher.Constraint("Vertical", 3))
sketch5.addConstraint(Sketcher.Constraint("Horizontal", 5))
sketch5.addConstraint(Sketcher.Constraint("Vertical", 7))
sketch5.addConstraint(Sketcher.Constraint("Horizontal", 8))
sketch5.addConstraint(Sketcher.Constraint("Vertical", 9))
sketch5.addConstraint(Sketcher.Constraint("Horizontal", 10))
sketch5.addConstraint(Sketcher.Constraint("Vertical", 11))
sketch5.addConstraint(Sketcher.Constraint("Horizontal", 12))
sketch5.addConstraint(Sketcher.Constraint("Vertical", 13))
sketch5.addConstraint(Sketcher.Constraint("Equal", 4, 6))
sketch5.addConstraint(Sketcher.Constraint("Horizontal", 2, 2, 7, 2))
sketch5.addConstraint(Sketcher.Constraint("Horizontal", 0, 2, 9, 2))
sketch5.addConstraint(Sketcher.Constraint("Horizontal", 8, 2, 11, 2))
sketch5.addConstraint(Sketcher.Constraint("Equal", 2, 8))
sketch5.addConstraint(Sketcher.Constraint("Equal", 0, 10))
sketch5.addConstraint(Sketcher.Constraint("Equal", 10, 12))
sketch5.addConstraint(Sketcher.Constraint("Radius", 4, Q("5 mm")))
sketch5.addConstraint(Sketcher.Constraint("DistanceX", 0, 2, 0, 1, Q("90 mm")))
sketch5.addConstraint(Sketcher.Constraint("DistanceX", 2, 2, 2, 1, Q("10 mm")))
sketch5.addConstraint(Sketcher.Constraint("DistanceY", 1, 2, 1, 1, Q("5 mm")))
sketch5.addConstraint(Sketcher.Constraint("DistanceY", 3, 2, 3, 1, Q("3 mm")))
sketch5.addConstraint(Sketcher.Constraint("DistanceX", 4, 3, -1, 1, Q("168.882617 mm")))
sketch5.addConstraint(Sketcher.Constraint("DistanceY", 4, 3, -1, 1, Q("110.206506 mm")))
pad5 = body5.newObject("PartDesign::Pad", "Pad004")
pad5.Profile = sketch5
pad5.Length = 5

doc.recompute()
